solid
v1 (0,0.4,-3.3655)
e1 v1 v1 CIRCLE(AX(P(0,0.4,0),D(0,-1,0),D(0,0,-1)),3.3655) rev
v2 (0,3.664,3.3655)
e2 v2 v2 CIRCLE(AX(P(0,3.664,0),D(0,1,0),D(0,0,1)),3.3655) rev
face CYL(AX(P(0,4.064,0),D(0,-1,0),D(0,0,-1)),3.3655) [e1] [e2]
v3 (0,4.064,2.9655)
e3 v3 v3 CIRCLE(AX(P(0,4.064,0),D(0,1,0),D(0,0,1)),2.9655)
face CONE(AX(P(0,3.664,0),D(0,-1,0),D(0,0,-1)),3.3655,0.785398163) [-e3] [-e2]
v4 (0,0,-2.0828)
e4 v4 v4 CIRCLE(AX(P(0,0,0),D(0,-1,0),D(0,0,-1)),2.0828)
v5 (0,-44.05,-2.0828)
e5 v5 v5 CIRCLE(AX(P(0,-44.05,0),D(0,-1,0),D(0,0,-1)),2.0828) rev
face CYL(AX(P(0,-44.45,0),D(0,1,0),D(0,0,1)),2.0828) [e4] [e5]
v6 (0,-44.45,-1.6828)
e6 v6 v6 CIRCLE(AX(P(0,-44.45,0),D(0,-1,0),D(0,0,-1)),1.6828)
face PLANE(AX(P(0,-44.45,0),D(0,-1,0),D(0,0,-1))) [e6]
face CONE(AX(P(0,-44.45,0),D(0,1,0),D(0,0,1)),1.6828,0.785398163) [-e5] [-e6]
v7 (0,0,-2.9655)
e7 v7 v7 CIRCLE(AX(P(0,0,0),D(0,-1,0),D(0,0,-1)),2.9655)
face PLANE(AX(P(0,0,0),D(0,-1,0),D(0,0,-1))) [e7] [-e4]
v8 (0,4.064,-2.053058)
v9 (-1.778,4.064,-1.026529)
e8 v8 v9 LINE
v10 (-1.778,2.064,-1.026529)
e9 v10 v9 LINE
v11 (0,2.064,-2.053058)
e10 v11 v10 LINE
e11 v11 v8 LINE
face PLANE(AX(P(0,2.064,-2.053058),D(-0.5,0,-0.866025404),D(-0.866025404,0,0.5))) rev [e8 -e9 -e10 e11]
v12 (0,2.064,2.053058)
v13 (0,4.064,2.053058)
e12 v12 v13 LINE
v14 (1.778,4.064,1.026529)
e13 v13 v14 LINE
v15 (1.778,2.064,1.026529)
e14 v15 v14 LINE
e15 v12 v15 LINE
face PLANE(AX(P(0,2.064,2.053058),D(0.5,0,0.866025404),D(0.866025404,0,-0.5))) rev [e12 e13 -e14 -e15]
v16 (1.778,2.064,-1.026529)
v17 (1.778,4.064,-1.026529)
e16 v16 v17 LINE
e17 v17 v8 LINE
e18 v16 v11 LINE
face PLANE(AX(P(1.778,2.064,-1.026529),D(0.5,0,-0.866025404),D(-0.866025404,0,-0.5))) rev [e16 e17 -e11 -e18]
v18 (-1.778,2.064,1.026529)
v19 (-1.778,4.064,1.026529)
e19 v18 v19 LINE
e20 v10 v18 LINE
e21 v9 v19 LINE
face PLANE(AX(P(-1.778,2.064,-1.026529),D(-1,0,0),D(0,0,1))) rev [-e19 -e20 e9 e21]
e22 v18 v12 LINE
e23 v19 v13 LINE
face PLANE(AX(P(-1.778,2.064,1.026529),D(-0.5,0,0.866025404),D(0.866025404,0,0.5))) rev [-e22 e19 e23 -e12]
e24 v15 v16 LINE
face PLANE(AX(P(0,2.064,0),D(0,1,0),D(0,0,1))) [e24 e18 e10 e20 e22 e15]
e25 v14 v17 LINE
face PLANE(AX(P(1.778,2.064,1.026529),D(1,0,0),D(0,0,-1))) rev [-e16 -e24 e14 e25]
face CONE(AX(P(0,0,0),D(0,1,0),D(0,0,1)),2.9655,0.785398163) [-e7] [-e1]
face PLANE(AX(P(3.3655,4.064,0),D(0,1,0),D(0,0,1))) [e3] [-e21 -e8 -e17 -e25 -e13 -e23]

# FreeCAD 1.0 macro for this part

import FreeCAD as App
import Part
import Sketcher
Q = App.Units.Quantity


def edges_at(feature, points):
    """Names of the edges that pass closest to the given points."""
    edges = feature.Shape.Edges
    near = lambda p: min(range(len(edges)), key=lambda i: edges[i].distToShape(Part.Vertex(*p))[0])
    return sorted({f"Edge{near(p) + 1}" for p in points})

doc = App.newDocument("Part")
body = doc.addObject("PartDesign::Body", "Body")

sketch1 = body.newObject("Sketcher::SketchObject", "Sketch")
sketch1.AttachmentSupport = (doc.getObject("XY_Plane"), [""])
sketch1.MapMode = "FlatFace"
sketch1.addGeometry([
    Part.LineSegment(App.Vector(0, 4.1, 0), App.Vector(0, 0, 0)),
    Part.LineSegment(App.Vector(0, 0, 0), App.Vector(3.4, 0, 0)),
    Part.LineSegment(App.Vector(3.4, 0, 0), App.Vector(3.4, 4.1, 0)),
    Part.LineSegment(App.Vector(3.4, 4.1, 0), App.Vector(0, 4.1, 0)),
], False)
sketch1.addConstraint([
    Sketcher.Constraint("Coincident", 0, 2, 1, 1),
    Sketcher.Constraint("Coincident", 1, 2, 2, 1),
    Sketcher.Constraint("Coincident", 2, 2, 3, 1),
    Sketcher.Constraint("Coincident", 3, 2, 0, 1),
    Sketcher.Constraint("Vertical", 0),
    Sketcher.Constraint("Horizontal", 1),
    Sketcher.Constraint("Vertical", 2),
    Sketcher.Constraint("Horizontal", 3),
    Sketcher.Constraint("Coincident", 0, 2, -1, 1),
    Sketcher.Constraint("DistanceY", 0, 2, 0, 1, Q("0.16 in")),
    Sketcher.Constraint("DistanceX", 1, 1, 1, 2, Q("0.1325 in")),
])
revolution = body.newObject("PartDesign::Revolution", "Revolution")
revolution.Profile = sketch1
revolution.ReferenceAxis = (sketch1, ["V_Axis"])
revolution.Angle = 360

sketch2 = body.newObject("Sketcher::SketchObject", "Sketch001")
sketch2.AttachmentSupport = (doc.getObject("XZ_Plane"), [""])
sketch2.MapMode = "FlatFace"
sketch2.addGeometry(Part.Circle(App.Vector(0, 0, 0), App.Vector(0, 0, 1), 2.1), False)
sketch2.addConstraint([
    Sketcher.Constraint("Coincident", 0, 3, -1, 1),
    Sketcher.Constraint("Diameter", 0, Q("0.164 in")),
])
pad1 = body.newObject("PartDesign::Pad", "Pad")
pad1.Profile = sketch2
pad1.Length = Q("1.75 in")

sketch3 = body.newObject("Sketcher::SketchObject", "Sketch002")
sketch3.AttachmentSupport = (doc.getObject("XZ_Plane"), [""])
sketch3.MapMode = "FlatFace"
sketch3.AttachmentOffset = App.Placement(App.Vector(0, 0, -0.16 * 25.4), App.Rotation())
sketch3.addGeometry([
    Part.LineSegment(App.Vector(1.8, -1, 0), App.Vector(0, -2.1, 0)),
    Part.LineSegment(App.Vector(0, -2.1, 0), App.Vector(-1.8, -1, 0)),
    Part.LineSegment(App.Vector(-1.8, -1, 0), App.Vector(-1.8, 1, 0)),
    Part.LineSegment(App.Vector(-1.8, 1, 0), App.Vector(0, 2.1, 0)),
    Part.LineSegment(App.Vector(0, 2.1, 0), App.Vector(1.8, 1, 0)),
    Part.LineSegment(App.Vector(1.8, 1, 0), App.Vector(1.8, -1, 0)),
], False)
sketch3.addConstraint([
    Sketcher.Constraint("Coincident", 0, 2, 1, 1),
    Sketcher.Constraint("Coincident", 1, 2, 2, 1),
    Sketcher.Constraint("Coincident", 2, 2, 3, 1),
    Sketcher.Constraint("Coincident", 3, 2, 4, 1),
    Sketcher.Constraint("Coincident", 4, 2, 5, 1),
    Sketcher.Constraint("Coincident", 5, 2, 0, 1),
    Sketcher.Constraint("Vertical", 2),
    Sketcher.Constraint("Vertical", 5),
    Sketcher.Constraint("Symmetric", 0, 2, 3, 2, -1, 1),
    Sketcher.Constraint("Symmetric", 1, 2, 4, 2, -1, 1),
    Sketcher.Constraint("PointOnObject", 0, 2, -2),
    Sketcher.Constraint("Parallel", 0, 3),
    Sketcher.Constraint("Horizontal", 2, 2, 4, 2),
    Sketcher.Constraint("Angle", 0, Q("-150 deg")),
    Sketcher.Constraint("DistanceX", 1, 2, -1, 1, Q("0.07 in")),
    Sketcher.Constraint("DistanceY", 2, 1, 2, 2, 2.053058),
])
pocket1 = body.newObject("PartDesign::Pocket", "Pocket")
pocket1.Profile = sketch3
pocket1.Length = 2
pocket1.Reversed = True
doc.recompute()

chamfer = body.newObject("PartDesign::Chamfer", "Chamfer")
chamfer.Base = (pocket1, edges_at(pocket1, [(0, 0, 3.365), (0, 4.064, 3.365), (0, -44.45, 2.083)]))
chamfer.Size = 0.4

doc.recompute()
